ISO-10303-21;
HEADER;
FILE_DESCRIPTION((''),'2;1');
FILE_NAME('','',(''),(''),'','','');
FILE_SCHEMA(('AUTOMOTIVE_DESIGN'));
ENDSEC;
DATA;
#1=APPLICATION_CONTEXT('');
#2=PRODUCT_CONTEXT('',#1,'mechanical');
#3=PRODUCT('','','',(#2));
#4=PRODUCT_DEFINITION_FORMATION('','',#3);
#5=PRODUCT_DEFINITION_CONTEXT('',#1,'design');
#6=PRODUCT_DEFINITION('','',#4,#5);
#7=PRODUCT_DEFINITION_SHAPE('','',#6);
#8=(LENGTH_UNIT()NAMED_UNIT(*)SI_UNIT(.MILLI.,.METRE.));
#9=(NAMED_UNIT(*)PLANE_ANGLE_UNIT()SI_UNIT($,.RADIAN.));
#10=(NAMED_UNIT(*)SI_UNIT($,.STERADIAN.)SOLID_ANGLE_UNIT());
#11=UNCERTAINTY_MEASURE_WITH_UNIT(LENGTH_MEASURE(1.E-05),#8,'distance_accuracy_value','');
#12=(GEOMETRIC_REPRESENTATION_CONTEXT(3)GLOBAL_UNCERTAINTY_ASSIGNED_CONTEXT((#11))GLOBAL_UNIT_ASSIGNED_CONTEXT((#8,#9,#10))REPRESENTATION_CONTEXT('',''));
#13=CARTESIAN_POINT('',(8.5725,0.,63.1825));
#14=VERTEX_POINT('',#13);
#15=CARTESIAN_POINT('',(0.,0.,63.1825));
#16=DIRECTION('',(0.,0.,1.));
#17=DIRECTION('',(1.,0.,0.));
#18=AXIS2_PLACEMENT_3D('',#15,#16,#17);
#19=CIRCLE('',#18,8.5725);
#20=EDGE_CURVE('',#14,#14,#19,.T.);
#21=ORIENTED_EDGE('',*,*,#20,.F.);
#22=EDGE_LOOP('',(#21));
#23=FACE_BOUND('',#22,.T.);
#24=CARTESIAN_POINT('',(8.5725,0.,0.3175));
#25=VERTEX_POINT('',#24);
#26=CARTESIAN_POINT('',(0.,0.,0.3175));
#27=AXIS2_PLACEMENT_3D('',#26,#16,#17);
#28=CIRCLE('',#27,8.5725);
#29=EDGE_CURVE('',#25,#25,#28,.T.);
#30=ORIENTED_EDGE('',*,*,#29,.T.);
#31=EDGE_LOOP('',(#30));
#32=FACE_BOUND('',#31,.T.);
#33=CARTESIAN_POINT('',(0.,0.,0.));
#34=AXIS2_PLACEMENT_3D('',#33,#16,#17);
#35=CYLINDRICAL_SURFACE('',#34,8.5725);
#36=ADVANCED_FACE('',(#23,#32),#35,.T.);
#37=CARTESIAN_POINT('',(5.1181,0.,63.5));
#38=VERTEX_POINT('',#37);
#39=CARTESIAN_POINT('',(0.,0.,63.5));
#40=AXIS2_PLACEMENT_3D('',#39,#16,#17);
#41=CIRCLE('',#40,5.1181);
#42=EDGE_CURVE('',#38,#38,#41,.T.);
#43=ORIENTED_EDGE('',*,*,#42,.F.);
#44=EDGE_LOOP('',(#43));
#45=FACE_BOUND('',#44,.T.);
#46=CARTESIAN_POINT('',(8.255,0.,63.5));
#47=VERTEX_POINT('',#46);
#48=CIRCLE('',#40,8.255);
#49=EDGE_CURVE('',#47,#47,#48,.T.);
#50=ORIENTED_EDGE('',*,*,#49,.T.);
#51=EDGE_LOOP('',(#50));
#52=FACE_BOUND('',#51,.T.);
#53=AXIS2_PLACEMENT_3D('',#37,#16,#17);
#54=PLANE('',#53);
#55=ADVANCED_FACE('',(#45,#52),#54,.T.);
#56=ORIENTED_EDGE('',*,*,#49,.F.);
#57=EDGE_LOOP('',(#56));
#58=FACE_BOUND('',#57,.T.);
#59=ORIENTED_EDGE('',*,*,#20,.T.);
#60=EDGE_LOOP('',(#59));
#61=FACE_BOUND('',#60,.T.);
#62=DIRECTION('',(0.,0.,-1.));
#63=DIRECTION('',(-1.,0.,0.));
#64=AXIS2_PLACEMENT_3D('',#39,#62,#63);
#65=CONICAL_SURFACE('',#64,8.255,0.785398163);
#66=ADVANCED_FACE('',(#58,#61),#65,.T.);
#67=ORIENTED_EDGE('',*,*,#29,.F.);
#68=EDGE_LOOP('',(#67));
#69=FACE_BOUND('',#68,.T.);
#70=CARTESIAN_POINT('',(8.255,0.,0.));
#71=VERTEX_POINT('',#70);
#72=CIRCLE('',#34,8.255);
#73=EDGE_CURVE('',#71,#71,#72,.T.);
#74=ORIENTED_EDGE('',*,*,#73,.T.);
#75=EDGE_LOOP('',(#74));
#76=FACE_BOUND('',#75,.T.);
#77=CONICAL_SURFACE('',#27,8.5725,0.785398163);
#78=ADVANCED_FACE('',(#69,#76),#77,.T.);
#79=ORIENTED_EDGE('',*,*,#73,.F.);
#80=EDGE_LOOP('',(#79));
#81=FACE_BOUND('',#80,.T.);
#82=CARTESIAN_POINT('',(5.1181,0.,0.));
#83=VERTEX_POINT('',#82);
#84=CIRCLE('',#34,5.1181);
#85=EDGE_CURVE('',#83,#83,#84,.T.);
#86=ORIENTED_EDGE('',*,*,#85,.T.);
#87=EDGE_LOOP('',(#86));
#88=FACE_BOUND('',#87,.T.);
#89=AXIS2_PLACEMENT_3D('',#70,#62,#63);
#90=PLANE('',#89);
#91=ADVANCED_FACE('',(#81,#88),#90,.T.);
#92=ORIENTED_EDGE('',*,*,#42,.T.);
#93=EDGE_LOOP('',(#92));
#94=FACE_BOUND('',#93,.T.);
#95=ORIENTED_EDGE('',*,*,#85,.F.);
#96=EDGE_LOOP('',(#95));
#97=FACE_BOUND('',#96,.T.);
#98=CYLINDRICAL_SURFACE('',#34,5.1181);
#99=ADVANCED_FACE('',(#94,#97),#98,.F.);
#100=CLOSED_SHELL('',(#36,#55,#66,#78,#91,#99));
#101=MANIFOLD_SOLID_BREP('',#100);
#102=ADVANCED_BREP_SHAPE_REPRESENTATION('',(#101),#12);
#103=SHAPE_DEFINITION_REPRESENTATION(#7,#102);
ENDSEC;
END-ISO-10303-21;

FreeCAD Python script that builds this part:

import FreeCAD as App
import Part
import Sketcher
Q = App.Units.Quantity


def add_polygon(sketch, points):
    """Adds a closed chain of lines whose ends are joined by coincident constraints."""
    first, n = sketch.GeometryCount, len(points)
    for a, b in zip(points, points[1:] + points[:1]):
        sketch.addGeometry(Part.LineSegment(App.Vector(*a, 0), App.Vector(*b, 0)), False)
    for i in range(n):
        sketch.addConstraint(Sketcher.Constraint("Coincident", first + i, 2, first + (i + 1) % n, 1))

doc = App.newDocument("Part")
params = doc.addObject("Spreadsheet::Sheet", "Params")
for row, (alias, value) in enumerate([
    ("sketch1_height", "2.5 in"),
    ("sketch1_height2", "2.475 in"),
    ("revolution_angle", "360 deg"),
], start=1):
    params.set(f"A{row}", alias)
    params.set(f"B{row}", "=" + value)
    params.setAlias(f"B{row}", alias)

body = doc.addObject("PartDesign::Body", "Body")

# Sketch on XZ plane
sketch1 = doc.addObject("Sketcher::SketchObject", "Sketch")
body.addObject(sketch1)
sketch1.AttachmentSupport = (doc.XZ_Plane, [""])
sketch1.MapMode = "FlatFace"
add_polygon(sketch1, [(8.26, 0), (5.12, 0), (5.12, 63.5), (8.26, 63.5), (8.57, 63.18), (8.57, 0.32)])  # lines 0-5
sketch1.addConstraint([
    Sketcher.Constraint("Horizontal", 0),
    Sketcher.Constraint("Vertical", 1),
    Sketcher.Constraint("Horizontal", 2),
    Sketcher.Constraint("Vertical", 4),
    Sketcher.Constraint("PointOnObject", 0, 2, -1),
    Sketcher.Constraint("Perpendicular", 3, 5),
    Sketcher.Constraint("Vertical", 2, 2, 5, 2),
    Sketcher.Constraint("Equal", 3, 5),
    Sketcher.Constraint("DistanceY", 1, 1, 1, 2, Q("2.5 in")),
    Sketcher.Constraint("DistanceY", 4, 2, 4, 1, Q("2.475 in")),
    Sketcher.Constraint("DistanceX", 0, 2, 0, 1, Q("0.1235 in")),
    Sketcher.Constraint("DistanceX", -1, 1, 2, 2, Q("0.325 in")),
])
sketch1.setExpression("Constraints[14]", "Params.sketch1_height")
sketch1.setExpression("Constraints[15]", "Params.sketch1_height2")
revolution = doc.addObject("PartDesign::Revolution", "Revolution")
body.addObject(revolution)
revolution.Profile = sketch1
revolution.ReferenceAxis = (sketch1, ["V_Axis"])
revolution.setExpression("Angle", "Params.revolution_angle")

doc.recompute()
